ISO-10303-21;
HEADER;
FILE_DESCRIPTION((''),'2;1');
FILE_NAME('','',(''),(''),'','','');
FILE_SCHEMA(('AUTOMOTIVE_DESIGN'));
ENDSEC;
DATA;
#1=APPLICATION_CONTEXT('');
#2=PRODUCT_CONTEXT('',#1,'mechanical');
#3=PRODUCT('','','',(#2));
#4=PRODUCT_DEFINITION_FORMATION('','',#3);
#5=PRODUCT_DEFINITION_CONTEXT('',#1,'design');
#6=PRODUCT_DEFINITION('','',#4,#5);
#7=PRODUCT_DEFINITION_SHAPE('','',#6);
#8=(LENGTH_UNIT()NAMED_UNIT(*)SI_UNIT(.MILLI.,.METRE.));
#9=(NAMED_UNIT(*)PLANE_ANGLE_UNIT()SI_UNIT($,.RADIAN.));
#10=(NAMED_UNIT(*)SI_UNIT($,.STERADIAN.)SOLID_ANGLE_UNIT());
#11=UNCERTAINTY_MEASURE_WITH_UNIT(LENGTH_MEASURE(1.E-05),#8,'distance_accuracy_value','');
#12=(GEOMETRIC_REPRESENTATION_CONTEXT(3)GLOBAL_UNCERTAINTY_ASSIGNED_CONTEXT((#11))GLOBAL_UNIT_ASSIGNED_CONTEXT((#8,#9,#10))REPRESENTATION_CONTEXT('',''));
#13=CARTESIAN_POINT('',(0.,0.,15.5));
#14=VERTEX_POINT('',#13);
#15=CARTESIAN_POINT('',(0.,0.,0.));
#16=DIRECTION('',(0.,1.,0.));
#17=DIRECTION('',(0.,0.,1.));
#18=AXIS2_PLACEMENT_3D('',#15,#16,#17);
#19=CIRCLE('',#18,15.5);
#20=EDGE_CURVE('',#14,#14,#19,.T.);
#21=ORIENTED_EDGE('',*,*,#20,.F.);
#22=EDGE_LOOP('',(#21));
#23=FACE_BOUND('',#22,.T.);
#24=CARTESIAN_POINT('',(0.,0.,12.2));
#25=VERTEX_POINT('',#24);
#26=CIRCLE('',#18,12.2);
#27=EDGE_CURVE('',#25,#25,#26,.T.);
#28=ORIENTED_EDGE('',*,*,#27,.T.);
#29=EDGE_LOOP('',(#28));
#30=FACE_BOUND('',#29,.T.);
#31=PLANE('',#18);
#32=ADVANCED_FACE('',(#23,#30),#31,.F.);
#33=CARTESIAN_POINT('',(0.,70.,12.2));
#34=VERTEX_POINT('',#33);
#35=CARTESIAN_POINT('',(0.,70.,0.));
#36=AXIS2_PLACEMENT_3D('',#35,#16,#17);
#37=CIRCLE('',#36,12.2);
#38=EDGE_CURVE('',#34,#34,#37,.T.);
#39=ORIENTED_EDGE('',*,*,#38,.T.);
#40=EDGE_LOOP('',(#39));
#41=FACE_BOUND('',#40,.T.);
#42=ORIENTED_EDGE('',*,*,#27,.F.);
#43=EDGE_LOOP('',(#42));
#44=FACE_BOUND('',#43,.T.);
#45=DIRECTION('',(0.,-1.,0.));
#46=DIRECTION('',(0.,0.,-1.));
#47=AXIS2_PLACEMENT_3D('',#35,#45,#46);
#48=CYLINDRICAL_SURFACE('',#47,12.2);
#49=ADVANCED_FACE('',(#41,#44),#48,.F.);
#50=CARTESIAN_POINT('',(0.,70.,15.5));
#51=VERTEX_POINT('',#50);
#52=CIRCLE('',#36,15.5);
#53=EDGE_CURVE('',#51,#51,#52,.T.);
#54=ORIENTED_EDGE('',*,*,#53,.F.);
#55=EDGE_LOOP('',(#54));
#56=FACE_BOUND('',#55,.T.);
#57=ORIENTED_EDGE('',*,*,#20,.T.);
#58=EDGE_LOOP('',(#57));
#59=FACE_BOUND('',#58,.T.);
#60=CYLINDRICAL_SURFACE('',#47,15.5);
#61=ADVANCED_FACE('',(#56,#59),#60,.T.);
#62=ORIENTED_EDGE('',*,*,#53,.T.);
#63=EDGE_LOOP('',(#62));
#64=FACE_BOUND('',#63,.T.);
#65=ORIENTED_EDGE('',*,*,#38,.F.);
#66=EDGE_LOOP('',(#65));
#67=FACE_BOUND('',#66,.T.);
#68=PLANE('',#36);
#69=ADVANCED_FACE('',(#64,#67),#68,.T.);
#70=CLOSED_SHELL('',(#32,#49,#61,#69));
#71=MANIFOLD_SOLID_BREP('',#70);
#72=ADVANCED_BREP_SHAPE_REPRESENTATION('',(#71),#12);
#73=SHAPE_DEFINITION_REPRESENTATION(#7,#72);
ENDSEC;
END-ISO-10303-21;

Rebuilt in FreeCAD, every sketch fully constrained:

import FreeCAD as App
import Part
import Sketcher
from FreeCAD import Vector
Q = App.Units.Quantity

doc = App.newDocument("Part")
body = doc.addObject("PartDesign::Body", "Body")

# Sketch on XZ plane
sketch1 = body.newObject("Sketcher::SketchObject", "Sketch")
sketch1.AttachmentSupport = (doc.getObject("XZ_Plane"), [""])
sketch1.MapMode = "FlatFace"
sketch1.addGeometry(Part.Circle(Vector(0, 0, 0), Vector(0, 0, 1), 16), False)
sketch1.addGeometry(Part.Circle(Vector(0, 0, 0), Vector(0, 0, 1), 12), False)
sketch1.addConstraint(Sketcher.Constraint("Coincident", 0, 3, -1, 1))
sketch1.addConstraint(Sketcher.Constraint("Coincident", 1, 3, -1, 1))
sketch1.addConstraint(Sketcher.Constraint("Diameter", 0, Q("31 mm")))
sketch1.addConstraint(Sketcher.Constraint("Diameter", 1, Q("24.4 mm")))
pad1 = body.newObject("PartDesign::Pad", "Pad")
pad1.Profile = sketch1
pad1.Length = 70
pad1.Reversed = True

doc.recompute()
